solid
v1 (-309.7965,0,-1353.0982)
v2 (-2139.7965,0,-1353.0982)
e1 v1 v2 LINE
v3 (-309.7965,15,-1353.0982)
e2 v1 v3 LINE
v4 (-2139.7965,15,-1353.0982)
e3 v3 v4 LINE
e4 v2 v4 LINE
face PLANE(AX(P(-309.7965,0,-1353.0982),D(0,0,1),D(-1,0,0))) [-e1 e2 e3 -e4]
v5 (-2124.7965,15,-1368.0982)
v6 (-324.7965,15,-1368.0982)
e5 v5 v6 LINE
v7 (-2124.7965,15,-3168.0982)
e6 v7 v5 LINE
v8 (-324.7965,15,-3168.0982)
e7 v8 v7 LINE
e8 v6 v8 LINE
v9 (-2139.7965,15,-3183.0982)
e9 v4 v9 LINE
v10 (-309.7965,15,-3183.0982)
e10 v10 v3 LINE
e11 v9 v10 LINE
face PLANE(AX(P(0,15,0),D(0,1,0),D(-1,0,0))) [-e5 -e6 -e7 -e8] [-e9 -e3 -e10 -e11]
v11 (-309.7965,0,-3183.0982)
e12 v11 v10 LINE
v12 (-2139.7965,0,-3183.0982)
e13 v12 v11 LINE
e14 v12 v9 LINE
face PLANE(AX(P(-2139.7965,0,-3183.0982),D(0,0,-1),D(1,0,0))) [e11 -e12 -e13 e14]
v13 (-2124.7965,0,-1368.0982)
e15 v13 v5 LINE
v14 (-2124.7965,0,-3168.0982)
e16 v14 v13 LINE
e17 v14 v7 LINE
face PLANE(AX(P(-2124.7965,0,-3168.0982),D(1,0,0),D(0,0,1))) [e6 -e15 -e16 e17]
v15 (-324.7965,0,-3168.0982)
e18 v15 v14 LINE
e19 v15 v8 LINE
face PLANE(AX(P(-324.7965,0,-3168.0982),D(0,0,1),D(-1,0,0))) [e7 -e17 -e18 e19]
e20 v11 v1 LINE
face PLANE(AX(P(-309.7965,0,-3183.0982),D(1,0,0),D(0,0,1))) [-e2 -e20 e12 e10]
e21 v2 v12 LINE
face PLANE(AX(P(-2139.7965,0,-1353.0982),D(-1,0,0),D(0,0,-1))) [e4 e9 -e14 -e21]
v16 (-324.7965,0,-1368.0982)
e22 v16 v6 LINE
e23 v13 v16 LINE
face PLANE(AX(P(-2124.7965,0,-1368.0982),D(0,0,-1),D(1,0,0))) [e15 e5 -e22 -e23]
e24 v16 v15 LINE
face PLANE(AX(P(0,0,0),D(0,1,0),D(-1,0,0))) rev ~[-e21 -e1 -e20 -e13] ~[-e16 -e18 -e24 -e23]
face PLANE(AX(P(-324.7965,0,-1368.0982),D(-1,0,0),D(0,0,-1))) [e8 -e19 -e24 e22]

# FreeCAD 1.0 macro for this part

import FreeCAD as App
import Part
import Sketcher
Q = App.Units.Quantity


def add_polygon(sketch, points):
    """Adds a closed chain of lines whose ends are joined by coincident constraints."""
    first, n = sketch.GeometryCount, len(points)
    for a, b in zip(points, points[1:] + points[:1]):
        sketch.addGeometry(Part.LineSegment(App.Vector(*a, 0), App.Vector(*b, 0)), False)
    for i in range(n):
        sketch.addConstraint(Sketcher.Constraint("Coincident", first + i, 2, first + (i + 1) % n, 1))

doc = App.newDocument("Part")
body = doc.addObject("PartDesign::Body", "Body")

sketch1 = doc.addObject("Sketcher::SketchObject", "Sketch")
body.addObject(sketch1)
sketch1.AttachmentSupport = (doc.XZ_Plane, [""])
sketch1.MapMode = "FlatFace"
add_polygon(sketch1, [(-2139.7965, -1353.0982), (-309.7965, -1353.0982), (-309.7965, -3183.0982), (-2139.7965, -3183.0982)])
add_polygon(sketch1, [(-324.7965, -1368.0982), (-2124.7965, -1368.0982), (-2124.7965, -3168.0982), (-324.7965, -3168.0982)])
sketch1.addConstraint([
    Sketcher.Constraint("Horizontal", 0),
    Sketcher.Constraint("Vertical", 1),
    Sketcher.Constraint("Horizontal", 2),
    Sketcher.Constraint("Vertical", 3),
    Sketcher.Constraint("Horizontal", 4),
    Sketcher.Constraint("Vertical", 5),
    Sketcher.Constraint("Horizontal", 6),
    Sketcher.Constraint("Vertical", 7),
    Sketcher.Constraint("Equal", 2, 1),
    Sketcher.Constraint("Equal", 6, 5),
    Sketcher.Constraint("DistanceX", 4, 2, 4, 1, Q("1800 mm")),
    Sketcher.Constraint("DistanceX", 3, 2, 4, 2, Q("15 mm")),
    Sketcher.Constraint("DistanceY", 4, 2, 3, 2, Q("15 mm")),
    Sketcher.Constraint("DistanceY", 2, 2, 5, 2, Q("15 mm")),
    Sketcher.Constraint("DistanceX", 0, 2, -1, 1, Q("309.7965 mm")),
    Sketcher.Constraint("DistanceY", 0, 2, -1, 1, Q("1353.0982 mm")),
])
pad1 = doc.addObject("PartDesign::Pad", "Pad")
body.addObject(pad1)
pad1.Profile = sketch1
pad1.Length = 15
pad1.Reversed = True

doc.recompute()
